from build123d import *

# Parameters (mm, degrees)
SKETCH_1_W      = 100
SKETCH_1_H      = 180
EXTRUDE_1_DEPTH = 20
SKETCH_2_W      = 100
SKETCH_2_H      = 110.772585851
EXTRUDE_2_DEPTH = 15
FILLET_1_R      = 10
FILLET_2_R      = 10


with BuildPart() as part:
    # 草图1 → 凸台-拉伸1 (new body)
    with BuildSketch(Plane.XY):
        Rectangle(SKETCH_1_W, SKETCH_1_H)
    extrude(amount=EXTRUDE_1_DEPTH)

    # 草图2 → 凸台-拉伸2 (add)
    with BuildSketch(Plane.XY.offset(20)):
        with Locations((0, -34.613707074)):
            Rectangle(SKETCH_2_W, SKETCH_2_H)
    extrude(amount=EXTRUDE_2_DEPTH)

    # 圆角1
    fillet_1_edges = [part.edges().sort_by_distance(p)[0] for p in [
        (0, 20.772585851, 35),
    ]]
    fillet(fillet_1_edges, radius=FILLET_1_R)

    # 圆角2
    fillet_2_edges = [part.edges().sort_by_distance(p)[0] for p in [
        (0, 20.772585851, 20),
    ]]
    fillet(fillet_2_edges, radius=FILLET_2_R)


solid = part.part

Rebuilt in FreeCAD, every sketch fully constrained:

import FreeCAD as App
import Part
import Sketcher

V = App.Vector
Q = App.Units.Quantity


def edges_at(feature, points):
    """Names of the edges that pass closest to the given points."""
    edges = feature.Shape.Edges
    near = lambda p: min(range(len(edges)), key=lambda i: edges[i].distToShape(Part.Vertex(*p))[0])
    return sorted({f"Edge{near(p) + 1}" for p in points})

doc = App.newDocument("Part")
body = doc.addObject("PartDesign::Body", "Body")

# Sketch on XY plane
sketch1 = body.newObject("Sketcher::SketchObject", "Sketch")
sketch1.AttachmentSupport = (doc.getObject("XY_Plane"), [""])
sketch1.MapMode = "FlatFace"
sketch1.addGeometry(Part.LineSegment(V(-50, 90, 0), V(-50, -90, 0)), False)
sketch1.addGeometry(Part.LineSegment(V(-50, -90, 0), V(50, -90, 0)), False)
sketch1.addGeometry(Part.LineSegment(V(50, -90, 0), V(50, 90, 0)), False)
sketch1.addGeometry(Part.LineSegment(V(50, 90, 0), V(-50, 90, 0)), False)
sketch1.addConstraint(Sketcher.Constraint("Coincident", 0, 2, 1, 1))
sketch1.addConstraint(Sketcher.Constraint("Coincident", 1, 2, 2, 1))
sketch1.addConstraint(Sketcher.Constraint("Coincident", 2, 2, 3, 1))
sketch1.addConstraint(Sketcher.Constraint("Coincident", 3, 2, 0, 1))
sketch1.addConstraint(Sketcher.Constraint("Vertical", 0))
sketch1.addConstraint(Sketcher.Constraint("Horizontal", 1))
sketch1.addConstraint(Sketcher.Constraint("Vertical", 2))
sketch1.addConstraint(Sketcher.Constraint("Horizontal", 3))
sketch1.addConstraint(Sketcher.Constraint("Symmetric", 0, 2, 2, 2, -1, 1))
sketch1.addConstraint(Sketcher.Constraint("DistanceX", 1, 1, 1, 2, Q("100 mm")))
sketch1.addConstraint(Sketcher.Constraint("DistanceY", 0, 2, 0, 1, Q("180 mm")))
pad1 = body.newObject("PartDesign::Pad", "Pad")
pad1.Profile = sketch1
pad1.Length = 20

# Sketch on XY plane
sketch2 = body.newObject("Sketcher::SketchObject", "Sketch001")
sketch2.AttachmentSupport = (doc.getObject("XY_Plane"), [""])
sketch2.MapMode = "FlatFace"
sketch2.AttachmentOffset = App.Placement(V(0, 0, 20), App.Rotation())
sketch2.addGeometry(Part.LineSegment(V(-50, 21, 0), V(-50, -90, 0)), False)
sketch2.addGeometry(Part.LineSegment(V(-50, -90, 0), V(50, -90, 0)), False)
sketch2.addGeometry(Part.LineSegment(V(50, -90, 0), V(50, 21, 0)), False)
sketch2.addGeometry(Part.LineSegment(V(50, 21, 0), V(-50, 21, 0)), False)
sketch2.addConstraint(Sketcher.Constraint("Coincident", 0, 2, 1, 1))
sketch2.addConstraint(Sketcher.Constraint("Coincident", 1, 2, 2, 1))
sketch2.addConstraint(Sketcher.Constraint("Coincident", 2, 2, 3, 1))
sketch2.addConstraint(Sketcher.Constraint("Coincident", 3, 2, 0, 1))
sketch2.addConstraint(Sketcher.Constraint("Vertical", 0))
sketch2.addConstraint(Sketcher.Constraint("Horizontal", 1))
sketch2.addConstraint(Sketcher.Constraint("Vertical", 2))
sketch2.addConstraint(Sketcher.Constraint("Horizontal", 3))
sketch2.addConstraint(Sketcher.Constraint("DistanceX", 1, 1, 1, 2, Q("100 mm")))
sketch2.addConstraint(Sketcher.Constraint("DistanceX", 0, 2, -1, 1, Q("50 mm")))
sketch2.addConstraint(Sketcher.Constraint("DistanceY", 0, 2, -1, 1, Q("90 mm")))
sketch2.addConstraint(Sketcher.Constraint("DistanceY", 0, 2, 0, 1, Q("110.772586 mm")))
pad2 = body.newObject("PartDesign::Pad", "Pad001")
pad2.Profile = sketch2
pad2.Length = 15
doc.recompute()

fillet = body.newObject("PartDesign::Fillet", "Fillet")
fillet.Base = (pad2, edges_at(pad2, [(0, 20.773, 35)]))
fillet.Radius = 10
doc.recompute()

fillet2 = body.newObject("PartDesign::Fillet", "Fillet001")
fillet2.Base = (fillet, edges_at(fillet, [(0, 20.773, 20)]))
fillet2.Radius = 10

doc.recompute()
